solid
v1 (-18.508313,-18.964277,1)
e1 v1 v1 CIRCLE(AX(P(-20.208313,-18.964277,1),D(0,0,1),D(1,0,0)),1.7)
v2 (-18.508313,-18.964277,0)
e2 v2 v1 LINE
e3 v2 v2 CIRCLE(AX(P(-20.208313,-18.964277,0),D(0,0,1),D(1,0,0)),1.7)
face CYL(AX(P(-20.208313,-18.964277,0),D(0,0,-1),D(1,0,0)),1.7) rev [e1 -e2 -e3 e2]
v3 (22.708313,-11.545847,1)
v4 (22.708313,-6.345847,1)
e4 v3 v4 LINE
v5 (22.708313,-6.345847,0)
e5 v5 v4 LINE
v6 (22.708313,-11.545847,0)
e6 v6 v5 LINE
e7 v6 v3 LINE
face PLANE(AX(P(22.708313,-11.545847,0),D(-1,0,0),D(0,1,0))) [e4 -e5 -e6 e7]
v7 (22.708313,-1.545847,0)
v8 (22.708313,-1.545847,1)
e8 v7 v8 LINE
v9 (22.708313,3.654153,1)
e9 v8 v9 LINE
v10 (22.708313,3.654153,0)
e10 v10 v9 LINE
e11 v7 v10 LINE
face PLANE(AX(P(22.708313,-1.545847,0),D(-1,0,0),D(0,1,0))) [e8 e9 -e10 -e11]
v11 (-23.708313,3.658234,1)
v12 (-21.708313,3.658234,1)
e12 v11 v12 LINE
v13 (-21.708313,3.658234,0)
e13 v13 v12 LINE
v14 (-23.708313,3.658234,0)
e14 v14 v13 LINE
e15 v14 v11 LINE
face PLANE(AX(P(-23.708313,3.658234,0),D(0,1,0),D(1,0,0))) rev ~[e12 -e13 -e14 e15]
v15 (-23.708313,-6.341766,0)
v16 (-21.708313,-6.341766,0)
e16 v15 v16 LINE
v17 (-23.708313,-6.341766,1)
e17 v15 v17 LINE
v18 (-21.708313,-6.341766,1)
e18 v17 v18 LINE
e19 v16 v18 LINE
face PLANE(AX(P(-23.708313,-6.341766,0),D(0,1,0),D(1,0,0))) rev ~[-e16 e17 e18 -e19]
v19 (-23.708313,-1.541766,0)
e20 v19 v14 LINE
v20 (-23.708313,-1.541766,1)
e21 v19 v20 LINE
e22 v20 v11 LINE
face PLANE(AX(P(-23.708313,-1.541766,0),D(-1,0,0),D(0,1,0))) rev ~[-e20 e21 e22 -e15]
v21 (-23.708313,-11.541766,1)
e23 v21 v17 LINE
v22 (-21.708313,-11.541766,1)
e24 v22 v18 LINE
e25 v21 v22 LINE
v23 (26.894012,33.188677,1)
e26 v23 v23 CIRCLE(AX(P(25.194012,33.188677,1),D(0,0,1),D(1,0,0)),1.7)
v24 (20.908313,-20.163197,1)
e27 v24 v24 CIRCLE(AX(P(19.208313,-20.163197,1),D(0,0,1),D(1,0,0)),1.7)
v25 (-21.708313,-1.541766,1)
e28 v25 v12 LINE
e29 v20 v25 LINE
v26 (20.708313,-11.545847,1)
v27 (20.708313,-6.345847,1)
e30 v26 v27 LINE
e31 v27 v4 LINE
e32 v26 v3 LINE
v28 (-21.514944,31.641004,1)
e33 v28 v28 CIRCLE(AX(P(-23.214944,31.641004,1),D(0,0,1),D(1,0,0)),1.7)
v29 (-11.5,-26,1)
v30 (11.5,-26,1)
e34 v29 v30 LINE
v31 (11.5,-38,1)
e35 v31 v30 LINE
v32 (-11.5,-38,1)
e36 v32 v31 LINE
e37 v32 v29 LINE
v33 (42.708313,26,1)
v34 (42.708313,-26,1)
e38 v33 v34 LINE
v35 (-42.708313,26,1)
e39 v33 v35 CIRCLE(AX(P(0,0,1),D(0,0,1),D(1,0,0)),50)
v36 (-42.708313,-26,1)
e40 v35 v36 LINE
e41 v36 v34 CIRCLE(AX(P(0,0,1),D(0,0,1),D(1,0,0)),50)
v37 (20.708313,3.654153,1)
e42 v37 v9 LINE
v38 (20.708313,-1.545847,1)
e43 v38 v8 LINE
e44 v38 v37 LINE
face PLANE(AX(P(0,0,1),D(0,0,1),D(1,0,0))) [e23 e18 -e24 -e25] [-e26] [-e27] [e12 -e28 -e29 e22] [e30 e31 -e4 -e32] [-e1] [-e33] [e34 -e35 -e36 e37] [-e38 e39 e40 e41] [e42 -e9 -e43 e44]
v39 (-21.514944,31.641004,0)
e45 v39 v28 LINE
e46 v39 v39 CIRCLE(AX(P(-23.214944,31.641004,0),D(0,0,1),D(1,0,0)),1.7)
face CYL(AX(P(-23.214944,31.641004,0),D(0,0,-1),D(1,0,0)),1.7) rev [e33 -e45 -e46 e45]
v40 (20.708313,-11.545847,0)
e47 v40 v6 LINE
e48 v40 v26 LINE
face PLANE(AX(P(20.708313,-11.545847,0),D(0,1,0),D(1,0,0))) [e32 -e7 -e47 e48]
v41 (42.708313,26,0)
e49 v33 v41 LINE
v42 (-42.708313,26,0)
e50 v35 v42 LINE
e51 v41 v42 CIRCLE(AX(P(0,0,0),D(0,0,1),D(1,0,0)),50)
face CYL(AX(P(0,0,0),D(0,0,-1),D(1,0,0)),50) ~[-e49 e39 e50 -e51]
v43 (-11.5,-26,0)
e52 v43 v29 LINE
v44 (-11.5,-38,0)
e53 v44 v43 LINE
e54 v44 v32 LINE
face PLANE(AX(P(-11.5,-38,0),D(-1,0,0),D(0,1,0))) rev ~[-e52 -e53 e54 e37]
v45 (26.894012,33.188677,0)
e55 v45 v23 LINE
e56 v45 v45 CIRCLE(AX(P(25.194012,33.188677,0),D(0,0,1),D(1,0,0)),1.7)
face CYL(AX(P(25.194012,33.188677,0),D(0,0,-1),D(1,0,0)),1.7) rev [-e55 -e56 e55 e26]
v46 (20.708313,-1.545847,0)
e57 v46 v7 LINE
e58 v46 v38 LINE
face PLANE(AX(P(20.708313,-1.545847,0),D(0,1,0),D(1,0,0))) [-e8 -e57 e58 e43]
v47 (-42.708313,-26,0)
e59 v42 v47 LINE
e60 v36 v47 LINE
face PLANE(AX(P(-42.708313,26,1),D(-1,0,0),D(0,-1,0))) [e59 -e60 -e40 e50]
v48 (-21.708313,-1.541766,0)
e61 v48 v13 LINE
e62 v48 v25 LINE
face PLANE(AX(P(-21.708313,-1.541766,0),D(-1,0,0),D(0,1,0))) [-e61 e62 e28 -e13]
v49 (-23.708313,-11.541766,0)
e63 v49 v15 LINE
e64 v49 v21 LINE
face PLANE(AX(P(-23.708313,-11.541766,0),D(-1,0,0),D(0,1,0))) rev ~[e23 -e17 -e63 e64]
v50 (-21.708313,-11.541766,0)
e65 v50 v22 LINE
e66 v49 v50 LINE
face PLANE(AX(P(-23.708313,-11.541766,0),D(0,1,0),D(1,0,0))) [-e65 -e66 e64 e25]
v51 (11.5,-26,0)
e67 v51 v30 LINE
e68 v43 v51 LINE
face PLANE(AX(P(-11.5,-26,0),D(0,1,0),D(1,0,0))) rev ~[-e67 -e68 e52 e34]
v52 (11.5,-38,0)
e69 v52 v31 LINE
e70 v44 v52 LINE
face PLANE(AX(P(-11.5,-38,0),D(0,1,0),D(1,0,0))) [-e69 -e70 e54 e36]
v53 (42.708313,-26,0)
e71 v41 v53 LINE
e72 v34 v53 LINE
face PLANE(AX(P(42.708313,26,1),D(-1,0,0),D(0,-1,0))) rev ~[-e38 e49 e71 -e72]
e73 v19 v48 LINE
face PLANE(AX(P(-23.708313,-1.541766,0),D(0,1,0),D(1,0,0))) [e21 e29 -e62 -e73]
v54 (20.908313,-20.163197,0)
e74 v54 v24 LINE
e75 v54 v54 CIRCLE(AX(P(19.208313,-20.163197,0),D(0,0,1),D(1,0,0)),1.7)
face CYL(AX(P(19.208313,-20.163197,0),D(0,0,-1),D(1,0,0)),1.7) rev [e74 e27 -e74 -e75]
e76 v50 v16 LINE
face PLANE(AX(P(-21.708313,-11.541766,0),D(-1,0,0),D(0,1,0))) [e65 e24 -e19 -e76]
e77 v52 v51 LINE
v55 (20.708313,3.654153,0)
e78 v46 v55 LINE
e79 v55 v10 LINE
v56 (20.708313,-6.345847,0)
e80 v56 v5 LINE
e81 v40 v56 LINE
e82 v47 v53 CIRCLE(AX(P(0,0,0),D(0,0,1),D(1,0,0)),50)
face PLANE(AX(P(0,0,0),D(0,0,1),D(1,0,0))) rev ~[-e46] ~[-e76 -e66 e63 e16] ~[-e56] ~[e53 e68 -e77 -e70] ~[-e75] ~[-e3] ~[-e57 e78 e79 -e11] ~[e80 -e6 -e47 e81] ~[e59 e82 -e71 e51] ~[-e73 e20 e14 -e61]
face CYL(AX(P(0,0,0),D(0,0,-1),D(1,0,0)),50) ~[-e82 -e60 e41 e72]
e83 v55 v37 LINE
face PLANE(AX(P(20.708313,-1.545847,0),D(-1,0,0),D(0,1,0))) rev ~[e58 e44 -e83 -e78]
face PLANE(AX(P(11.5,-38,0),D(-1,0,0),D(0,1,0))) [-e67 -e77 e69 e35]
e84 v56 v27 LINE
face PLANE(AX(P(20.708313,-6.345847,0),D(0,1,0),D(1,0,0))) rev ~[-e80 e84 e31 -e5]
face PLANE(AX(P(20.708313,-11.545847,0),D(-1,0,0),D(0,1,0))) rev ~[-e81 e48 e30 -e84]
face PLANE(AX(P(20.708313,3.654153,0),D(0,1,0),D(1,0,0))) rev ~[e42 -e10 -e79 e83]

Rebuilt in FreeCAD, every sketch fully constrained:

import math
import FreeCAD as App
import Part
import Sketcher
from FreeCAD import Vector
Q = App.Units.Quantity

doc = App.newDocument("Part")
params = doc.addObject("Spreadsheet::Sheet", "Params")
for row, (alias, value) in enumerate([
    ("sketch1_diameter", "100 mm"),
    ("sketch1_diameter2", "3.4 mm"),
    ("sketch1_width", "23 mm"),
    ("sketch1_width2", "2 mm"),
    ("sketch1_height", "12 mm"),
    ("pad1_length", "1 mm"),
    ("sketch2_radius", "26 mm"),
], start=1):
    params.set(f"A{row}", alias)
    params.set(f"B{row}", "=" + value)
    params.setAlias(f"B{row}", alias)

body = doc.addObject("PartDesign::Body", "Body")

sketch1 = doc.addObject("Sketcher::SketchObject", "Sketch")
body.addObject(sketch1)
sketch1.AttachmentSupport = (doc.XY_Plane, [""])
sketch1.MapMode = "FlatFace"
sketch1.addGeometry(Part.Circle(Vector(0, 0, 0), Vector(0, 0, 1), 50), False)
sketch1.addGeometry(Part.LineSegment(Vector(11.5, -38, 0), Vector(-11.5, -38, 0)), False)
sketch1.addGeometry(Part.LineSegment(Vector(-11.5, -38, 0), Vector(-11.5, -26, 0)), False)
sketch1.addGeometry(Part.LineSegment(Vector(-11.5, -26, 0), Vector(11.5, -26, 0)), False)
sketch1.addGeometry(Part.LineSegment(Vector(11.5, -26, 0), Vector(11.5, -38, 0)), False)
sketch1.addGeometry(Part.Circle(Vector(-20.2, -19, 0), Vector(0, 0, 1), 1.7), False)
sketch1.addGeometry(Part.LineSegment(Vector(-21.7, -11.5, 0), Vector(-23.7, -11.5, 0)), False)
sketch1.addGeometry(Part.LineSegment(Vector(-23.7, -11.5, 0), Vector(-23.7, -6.3, 0)), False)
sketch1.addGeometry(Part.LineSegment(Vector(-23.7, -6.3, 0), Vector(-21.7, -6.3, 0)), False)
sketch1.addGeometry(Part.LineSegment(Vector(-21.7, -6.3, 0), Vector(-21.7, -11.5, 0)), False)
sketch1.addGeometry(Part.Circle(Vector(19.2, -20.2, 0), Vector(0, 0, 1), 1.7), False)
sketch1.addGeometry(Part.LineSegment(Vector(22.7, -11.5, 0), Vector(20.7, -11.5, 0)), False)
sketch1.addGeometry(Part.LineSegment(Vector(20.7, -11.5, 0), Vector(20.7, -6.3, 0)), False)
sketch1.addGeometry(Part.LineSegment(Vector(20.7, -6.3, 0), Vector(22.7, -6.3, 0)), False)
sketch1.addGeometry(Part.LineSegment(Vector(22.7, -6.3, 0), Vector(22.7, -11.5, 0)), False)
sketch1.addGeometry(Part.LineSegment(Vector(-21.7, -1.5, 0), Vector(-23.7, -1.5, 0)), False)
sketch1.addGeometry(Part.LineSegment(Vector(-23.7, -1.5, 0), Vector(-23.7, 3.7, 0)), False)
sketch1.addGeometry(Part.LineSegment(Vector(-23.7, 3.7, 0), Vector(-21.7, 3.7, 0)), False)
sketch1.addGeometry(Part.LineSegment(Vector(-21.7, 3.7, 0), Vector(-21.7, -1.5, 0)), False)
sketch1.addGeometry(Part.Circle(Vector(-23.2, 31.6, 0), Vector(0, 0, 1), 1.7), False)
sketch1.addGeometry(Part.LineSegment(Vector(22.7, -1.5, 0), Vector(20.7, -1.5, 0)), False)
sketch1.addGeometry(Part.LineSegment(Vector(20.7, -1.5, 0), Vector(20.7, 3.7, 0)), False)
sketch1.addGeometry(Part.LineSegment(Vector(20.7, 3.7, 0), Vector(22.7, 3.7, 0)), False)
sketch1.addGeometry(Part.LineSegment(Vector(22.7, 3.7, 0), Vector(22.7, -1.5, 0)), False)
sketch1.addGeometry(Part.Circle(Vector(25.2, 33.2, 0), Vector(0, 0, 1), 1.7), False)
sketch1.addConstraint(Sketcher.Constraint("Coincident", 1, 2, 2, 1))
sketch1.addConstraint(Sketcher.Constraint("Coincident", 2, 2, 3, 1))
sketch1.addConstraint(Sketcher.Constraint("Coincident", 3, 2, 4, 1))
sketch1.addConstraint(Sketcher.Constraint("Coincident", 4, 2, 1, 1))
sketch1.addConstraint(Sketcher.Constraint("Coincident", 6, 2, 7, 1))
sketch1.addConstraint(Sketcher.Constraint("Coincident", 7, 2, 8, 1))
sketch1.addConstraint(Sketcher.Constraint("Coincident", 8, 2, 9, 1))
sketch1.addConstraint(Sketcher.Constraint("Coincident", 9, 2, 6, 1))
sketch1.addConstraint(Sketcher.Constraint("Coincident", 11, 2, 12, 1))
sketch1.addConstraint(Sketcher.Constraint("Coincident", 12, 2, 13, 1))
sketch1.addConstraint(Sketcher.Constraint("Coincident", 13, 2, 14, 1))
sketch1.addConstraint(Sketcher.Constraint("Coincident", 14, 2, 11, 1))
sketch1.addConstraint(Sketcher.Constraint("Coincident", 15, 2, 16, 1))
sketch1.addConstraint(Sketcher.Constraint("Coincident", 16, 2, 17, 1))
sketch1.addConstraint(Sketcher.Constraint("Coincident", 17, 2, 18, 1))
sketch1.addConstraint(Sketcher.Constraint("Coincident", 18, 2, 15, 1))
sketch1.addConstraint(Sketcher.Constraint("Coincident", 20, 2, 21, 1))
sketch1.addConstraint(Sketcher.Constraint("Coincident", 21, 2, 22, 1))
sketch1.addConstraint(Sketcher.Constraint("Coincident", 22, 2, 23, 1))
sketch1.addConstraint(Sketcher.Constraint("Coincident", 23, 2, 20, 1))
sketch1.addConstraint(Sketcher.Constraint("Horizontal", 1))
sketch1.addConstraint(Sketcher.Constraint("Vertical", 2))
sketch1.addConstraint(Sketcher.Constraint("Horizontal", 3))
sketch1.addConstraint(Sketcher.Constraint("Vertical", 4))
sketch1.addConstraint(Sketcher.Constraint("Horizontal", 6))
sketch1.addConstraint(Sketcher.Constraint("Vertical", 7))
sketch1.addConstraint(Sketcher.Constraint("Horizontal", 8))
sketch1.addConstraint(Sketcher.Constraint("Vertical", 9))
sketch1.addConstraint(Sketcher.Constraint("Horizontal", 11))
sketch1.addConstraint(Sketcher.Constraint("Vertical", 12))
sketch1.addConstraint(Sketcher.Constraint("Horizontal", 13))
sketch1.addConstraint(Sketcher.Constraint("Vertical", 14))
sketch1.addConstraint(Sketcher.Constraint("Horizontal", 15))
sketch1.addConstraint(Sketcher.Constraint("Vertical", 16))
sketch1.addConstraint(Sketcher.Constraint("Horizontal", 17))
sketch1.addConstraint(Sketcher.Constraint("Vertical", 18))
sketch1.addConstraint(Sketcher.Constraint("Horizontal", 20))
sketch1.addConstraint(Sketcher.Constraint("Vertical", 21))
sketch1.addConstraint(Sketcher.Constraint("Horizontal", 22))
sketch1.addConstraint(Sketcher.Constraint("Vertical", 23))
sketch1.addConstraint(Sketcher.Constraint("Coincident", 0, 3, -1, 1))
sketch1.addConstraint(Sketcher.Constraint("Equal", 5, 10))
sketch1.addConstraint(Sketcher.Constraint("Equal", 10, 19))
sketch1.addConstraint(Sketcher.Constraint("Equal", 19, 24))
sketch1.addConstraint(Sketcher.Constraint("Vertical", 7, 2, 15, 2))
sketch1.addConstraint(Sketcher.Constraint("Vertical", 9, 2, 17, 2))
sketch1.addConstraint(Sketcher.Constraint("Vertical", 12, 2, 20, 2))
sketch1.addConstraint(Sketcher.Constraint("Vertical", 14, 2, 22, 2))
sketch1.addConstraint(Sketcher.Constraint("Equal", 8, 11))
sketch1.addConstraint(Sketcher.Constraint("Equal", 9, 12))
sketch1.addConstraint(Sketcher.Constraint("Equal", 14, 16))
sketch1.addConstraint(Sketcher.Constraint("Equal", 18, 21))
sketch1.addConstraint(Sketcher.Constraint("Diameter", 0, Q("100 mm")))
sketch1.addConstraint(Sketcher.Constraint("Diameter", 5, Q("3.4 mm")))
sketch1.addConstraint(Sketcher.Constraint("DistanceX", 1, 2, 1, 1, Q("23 mm")))
sketch1.addConstraint(Sketcher.Constraint("DistanceX", 6, 2, 6, 1, Q("2 mm")))
sketch1.addConstraint(Sketcher.Constraint("DistanceY", 2, 1, 2, 2, Q("12 mm")))
sketch1.addConstraint(Sketcher.Constraint("DistanceY", 7, 1, 7, 2, Q("5.2 mm")))
sketch1.addConstraint(Sketcher.Constraint("DistanceY", 1, 2, -1, 1, Q("38 mm")))
sketch1.addConstraint(Sketcher.Constraint("DistanceY", 6, 2, 15, 2, Q("10 mm")))
sketch1.addConstraint(Sketcher.Constraint("DistanceY", 11, 2, 20, 2, Q("10 mm")))
sketch1.addConstraint(Sketcher.Constraint("DistanceX", 1, 2, -1, 1, Q("11.5 mm")))
sketch1.addConstraint(Sketcher.Constraint("DistanceX", 6, 2, 5, 3, Q("3.5 mm")))
sketch1.addConstraint(Sketcher.Constraint("DistanceX", 10, 3, 11, 2, Q("1.5 mm")))
sketch1.addConstraint(Sketcher.Constraint("DistanceY", 10, 3, 19, 3, Q("51.804201 mm")))
sketch1.addConstraint(Sketcher.Constraint("DistanceX", 10, 3, 24, 3, Q("5.985699 mm")))
sketch1.addConstraint(Sketcher.Constraint("DistanceY", 10, 3, 5, 3, Q("1.19892 mm")))
sketch1.addConstraint(Sketcher.Constraint("DistanceX", 19, 3, 5, 3, Q("3.006631 mm")))
sketch1.addConstraint(Sketcher.Constraint("DistanceY", 5, 3, 6, 2, Q("7.422511 mm")))
sketch1.addConstraint(Sketcher.Constraint("DistanceY", 10, 3, 11, 2, Q("8.61735 mm")))
sketch1.addConstraint(Sketcher.Constraint("DistanceX", 5, 3, -1, 1, Q("20.208313 mm")))
sketch1.addConstraint(Sketcher.Constraint("DistanceY", 5, 3, -1, 1, Q("18.964277 mm")))
sketch1.addConstraint(Sketcher.Constraint("DistanceX", -1, 1, 10, 3, Q("19.208313 mm")))
sketch1.addConstraint(Sketcher.Constraint("DistanceY", -1, 1, 24, 3, Q("33.188677 mm")))
sketch1.setExpression("Constraints[52]", "Params.sketch1_diameter")
sketch1.setExpression("Constraints[53]", "Params.sketch1_diameter2")
sketch1.setExpression("Constraints[54]", "Params.sketch1_width")
sketch1.setExpression("Constraints[55]", "Params.sketch1_width2")
sketch1.setExpression("Constraints[56]", "Params.sketch1_height")
pad1 = doc.addObject("PartDesign::Pad", "Pad")
body.addObject(pad1)
pad1.Profile = sketch1
pad1.setExpression("Length", "Params.pad1_length")

sketch2 = doc.addObject("Sketcher::SketchObject", "Sketch001")
body.addObject(sketch2)
sketch2.AttachmentSupport = (doc.XY_Plane, [""])
sketch2.MapMode = "FlatFace"
sketch2.AttachmentOffset = App.Placement(Vector(0, 0, 1), App.Rotation())
sketch2.addGeometry(Part.LineSegment(Vector(-43, -26, 0), Vector(-43, 26, 0)), False)
sketch2.addGeometry(Part.ArcOfCircle(Part.Circle(Vector(-43, 0, 0), Vector(0, 0, 1), 26), math.radians(90), math.radians(270)), False)
sketch2.addGeometry(Part.LineSegment(Vector(43, 26, 0), Vector(43, -26, 0)), False)
sketch2.addGeometry(Part.ArcOfCircle(Part.Circle(Vector(43, 0, 0), Vector(0, 0, 1), 26), math.radians(-90), math.radians(90)), False)
sketch2.addConstraint(Sketcher.Constraint("Coincident", 0, 1, 1, 2))
sketch2.addConstraint(Sketcher.Constraint("Coincident", 1, 1, 0, 2))
sketch2.addConstraint(Sketcher.Constraint("Coincident", 2, 1, 3, 2))
sketch2.addConstraint(Sketcher.Constraint("Coincident", 3, 1, 2, 2))
sketch2.addConstraint(Sketcher.Constraint("Vertical", 0))
sketch2.addConstraint(Sketcher.Constraint("Vertical", 2))
sketch2.addConstraint(Sketcher.Constraint("Equal", 1, 3))
sketch2.addConstraint(Sketcher.Constraint("Symmetric", 1, 3, 3, 3, -1, 1))
sketch2.addConstraint(Sketcher.Constraint("Symmetric", 1, 1, 2, 1, -2))
sketch2.addConstraint(Sketcher.Constraint("Vertical", 1, 3, 0, 1))
sketch2.addConstraint(Sketcher.Constraint("Radius", 1, Q("26 mm")))
sketch2.addConstraint(Sketcher.Constraint("DistanceX", 1, 3, -1, 1, Q("42.708313 mm")))
sketch2.setExpression("Constraints[10]", "Params.sketch2_radius")
pocket1 = doc.addObject("PartDesign::Pocket", "Pocket")
body.addObject(pocket1)
pocket1.Profile = sketch2
pocket1.Type = "ThroughAll"

doc.recompute()
